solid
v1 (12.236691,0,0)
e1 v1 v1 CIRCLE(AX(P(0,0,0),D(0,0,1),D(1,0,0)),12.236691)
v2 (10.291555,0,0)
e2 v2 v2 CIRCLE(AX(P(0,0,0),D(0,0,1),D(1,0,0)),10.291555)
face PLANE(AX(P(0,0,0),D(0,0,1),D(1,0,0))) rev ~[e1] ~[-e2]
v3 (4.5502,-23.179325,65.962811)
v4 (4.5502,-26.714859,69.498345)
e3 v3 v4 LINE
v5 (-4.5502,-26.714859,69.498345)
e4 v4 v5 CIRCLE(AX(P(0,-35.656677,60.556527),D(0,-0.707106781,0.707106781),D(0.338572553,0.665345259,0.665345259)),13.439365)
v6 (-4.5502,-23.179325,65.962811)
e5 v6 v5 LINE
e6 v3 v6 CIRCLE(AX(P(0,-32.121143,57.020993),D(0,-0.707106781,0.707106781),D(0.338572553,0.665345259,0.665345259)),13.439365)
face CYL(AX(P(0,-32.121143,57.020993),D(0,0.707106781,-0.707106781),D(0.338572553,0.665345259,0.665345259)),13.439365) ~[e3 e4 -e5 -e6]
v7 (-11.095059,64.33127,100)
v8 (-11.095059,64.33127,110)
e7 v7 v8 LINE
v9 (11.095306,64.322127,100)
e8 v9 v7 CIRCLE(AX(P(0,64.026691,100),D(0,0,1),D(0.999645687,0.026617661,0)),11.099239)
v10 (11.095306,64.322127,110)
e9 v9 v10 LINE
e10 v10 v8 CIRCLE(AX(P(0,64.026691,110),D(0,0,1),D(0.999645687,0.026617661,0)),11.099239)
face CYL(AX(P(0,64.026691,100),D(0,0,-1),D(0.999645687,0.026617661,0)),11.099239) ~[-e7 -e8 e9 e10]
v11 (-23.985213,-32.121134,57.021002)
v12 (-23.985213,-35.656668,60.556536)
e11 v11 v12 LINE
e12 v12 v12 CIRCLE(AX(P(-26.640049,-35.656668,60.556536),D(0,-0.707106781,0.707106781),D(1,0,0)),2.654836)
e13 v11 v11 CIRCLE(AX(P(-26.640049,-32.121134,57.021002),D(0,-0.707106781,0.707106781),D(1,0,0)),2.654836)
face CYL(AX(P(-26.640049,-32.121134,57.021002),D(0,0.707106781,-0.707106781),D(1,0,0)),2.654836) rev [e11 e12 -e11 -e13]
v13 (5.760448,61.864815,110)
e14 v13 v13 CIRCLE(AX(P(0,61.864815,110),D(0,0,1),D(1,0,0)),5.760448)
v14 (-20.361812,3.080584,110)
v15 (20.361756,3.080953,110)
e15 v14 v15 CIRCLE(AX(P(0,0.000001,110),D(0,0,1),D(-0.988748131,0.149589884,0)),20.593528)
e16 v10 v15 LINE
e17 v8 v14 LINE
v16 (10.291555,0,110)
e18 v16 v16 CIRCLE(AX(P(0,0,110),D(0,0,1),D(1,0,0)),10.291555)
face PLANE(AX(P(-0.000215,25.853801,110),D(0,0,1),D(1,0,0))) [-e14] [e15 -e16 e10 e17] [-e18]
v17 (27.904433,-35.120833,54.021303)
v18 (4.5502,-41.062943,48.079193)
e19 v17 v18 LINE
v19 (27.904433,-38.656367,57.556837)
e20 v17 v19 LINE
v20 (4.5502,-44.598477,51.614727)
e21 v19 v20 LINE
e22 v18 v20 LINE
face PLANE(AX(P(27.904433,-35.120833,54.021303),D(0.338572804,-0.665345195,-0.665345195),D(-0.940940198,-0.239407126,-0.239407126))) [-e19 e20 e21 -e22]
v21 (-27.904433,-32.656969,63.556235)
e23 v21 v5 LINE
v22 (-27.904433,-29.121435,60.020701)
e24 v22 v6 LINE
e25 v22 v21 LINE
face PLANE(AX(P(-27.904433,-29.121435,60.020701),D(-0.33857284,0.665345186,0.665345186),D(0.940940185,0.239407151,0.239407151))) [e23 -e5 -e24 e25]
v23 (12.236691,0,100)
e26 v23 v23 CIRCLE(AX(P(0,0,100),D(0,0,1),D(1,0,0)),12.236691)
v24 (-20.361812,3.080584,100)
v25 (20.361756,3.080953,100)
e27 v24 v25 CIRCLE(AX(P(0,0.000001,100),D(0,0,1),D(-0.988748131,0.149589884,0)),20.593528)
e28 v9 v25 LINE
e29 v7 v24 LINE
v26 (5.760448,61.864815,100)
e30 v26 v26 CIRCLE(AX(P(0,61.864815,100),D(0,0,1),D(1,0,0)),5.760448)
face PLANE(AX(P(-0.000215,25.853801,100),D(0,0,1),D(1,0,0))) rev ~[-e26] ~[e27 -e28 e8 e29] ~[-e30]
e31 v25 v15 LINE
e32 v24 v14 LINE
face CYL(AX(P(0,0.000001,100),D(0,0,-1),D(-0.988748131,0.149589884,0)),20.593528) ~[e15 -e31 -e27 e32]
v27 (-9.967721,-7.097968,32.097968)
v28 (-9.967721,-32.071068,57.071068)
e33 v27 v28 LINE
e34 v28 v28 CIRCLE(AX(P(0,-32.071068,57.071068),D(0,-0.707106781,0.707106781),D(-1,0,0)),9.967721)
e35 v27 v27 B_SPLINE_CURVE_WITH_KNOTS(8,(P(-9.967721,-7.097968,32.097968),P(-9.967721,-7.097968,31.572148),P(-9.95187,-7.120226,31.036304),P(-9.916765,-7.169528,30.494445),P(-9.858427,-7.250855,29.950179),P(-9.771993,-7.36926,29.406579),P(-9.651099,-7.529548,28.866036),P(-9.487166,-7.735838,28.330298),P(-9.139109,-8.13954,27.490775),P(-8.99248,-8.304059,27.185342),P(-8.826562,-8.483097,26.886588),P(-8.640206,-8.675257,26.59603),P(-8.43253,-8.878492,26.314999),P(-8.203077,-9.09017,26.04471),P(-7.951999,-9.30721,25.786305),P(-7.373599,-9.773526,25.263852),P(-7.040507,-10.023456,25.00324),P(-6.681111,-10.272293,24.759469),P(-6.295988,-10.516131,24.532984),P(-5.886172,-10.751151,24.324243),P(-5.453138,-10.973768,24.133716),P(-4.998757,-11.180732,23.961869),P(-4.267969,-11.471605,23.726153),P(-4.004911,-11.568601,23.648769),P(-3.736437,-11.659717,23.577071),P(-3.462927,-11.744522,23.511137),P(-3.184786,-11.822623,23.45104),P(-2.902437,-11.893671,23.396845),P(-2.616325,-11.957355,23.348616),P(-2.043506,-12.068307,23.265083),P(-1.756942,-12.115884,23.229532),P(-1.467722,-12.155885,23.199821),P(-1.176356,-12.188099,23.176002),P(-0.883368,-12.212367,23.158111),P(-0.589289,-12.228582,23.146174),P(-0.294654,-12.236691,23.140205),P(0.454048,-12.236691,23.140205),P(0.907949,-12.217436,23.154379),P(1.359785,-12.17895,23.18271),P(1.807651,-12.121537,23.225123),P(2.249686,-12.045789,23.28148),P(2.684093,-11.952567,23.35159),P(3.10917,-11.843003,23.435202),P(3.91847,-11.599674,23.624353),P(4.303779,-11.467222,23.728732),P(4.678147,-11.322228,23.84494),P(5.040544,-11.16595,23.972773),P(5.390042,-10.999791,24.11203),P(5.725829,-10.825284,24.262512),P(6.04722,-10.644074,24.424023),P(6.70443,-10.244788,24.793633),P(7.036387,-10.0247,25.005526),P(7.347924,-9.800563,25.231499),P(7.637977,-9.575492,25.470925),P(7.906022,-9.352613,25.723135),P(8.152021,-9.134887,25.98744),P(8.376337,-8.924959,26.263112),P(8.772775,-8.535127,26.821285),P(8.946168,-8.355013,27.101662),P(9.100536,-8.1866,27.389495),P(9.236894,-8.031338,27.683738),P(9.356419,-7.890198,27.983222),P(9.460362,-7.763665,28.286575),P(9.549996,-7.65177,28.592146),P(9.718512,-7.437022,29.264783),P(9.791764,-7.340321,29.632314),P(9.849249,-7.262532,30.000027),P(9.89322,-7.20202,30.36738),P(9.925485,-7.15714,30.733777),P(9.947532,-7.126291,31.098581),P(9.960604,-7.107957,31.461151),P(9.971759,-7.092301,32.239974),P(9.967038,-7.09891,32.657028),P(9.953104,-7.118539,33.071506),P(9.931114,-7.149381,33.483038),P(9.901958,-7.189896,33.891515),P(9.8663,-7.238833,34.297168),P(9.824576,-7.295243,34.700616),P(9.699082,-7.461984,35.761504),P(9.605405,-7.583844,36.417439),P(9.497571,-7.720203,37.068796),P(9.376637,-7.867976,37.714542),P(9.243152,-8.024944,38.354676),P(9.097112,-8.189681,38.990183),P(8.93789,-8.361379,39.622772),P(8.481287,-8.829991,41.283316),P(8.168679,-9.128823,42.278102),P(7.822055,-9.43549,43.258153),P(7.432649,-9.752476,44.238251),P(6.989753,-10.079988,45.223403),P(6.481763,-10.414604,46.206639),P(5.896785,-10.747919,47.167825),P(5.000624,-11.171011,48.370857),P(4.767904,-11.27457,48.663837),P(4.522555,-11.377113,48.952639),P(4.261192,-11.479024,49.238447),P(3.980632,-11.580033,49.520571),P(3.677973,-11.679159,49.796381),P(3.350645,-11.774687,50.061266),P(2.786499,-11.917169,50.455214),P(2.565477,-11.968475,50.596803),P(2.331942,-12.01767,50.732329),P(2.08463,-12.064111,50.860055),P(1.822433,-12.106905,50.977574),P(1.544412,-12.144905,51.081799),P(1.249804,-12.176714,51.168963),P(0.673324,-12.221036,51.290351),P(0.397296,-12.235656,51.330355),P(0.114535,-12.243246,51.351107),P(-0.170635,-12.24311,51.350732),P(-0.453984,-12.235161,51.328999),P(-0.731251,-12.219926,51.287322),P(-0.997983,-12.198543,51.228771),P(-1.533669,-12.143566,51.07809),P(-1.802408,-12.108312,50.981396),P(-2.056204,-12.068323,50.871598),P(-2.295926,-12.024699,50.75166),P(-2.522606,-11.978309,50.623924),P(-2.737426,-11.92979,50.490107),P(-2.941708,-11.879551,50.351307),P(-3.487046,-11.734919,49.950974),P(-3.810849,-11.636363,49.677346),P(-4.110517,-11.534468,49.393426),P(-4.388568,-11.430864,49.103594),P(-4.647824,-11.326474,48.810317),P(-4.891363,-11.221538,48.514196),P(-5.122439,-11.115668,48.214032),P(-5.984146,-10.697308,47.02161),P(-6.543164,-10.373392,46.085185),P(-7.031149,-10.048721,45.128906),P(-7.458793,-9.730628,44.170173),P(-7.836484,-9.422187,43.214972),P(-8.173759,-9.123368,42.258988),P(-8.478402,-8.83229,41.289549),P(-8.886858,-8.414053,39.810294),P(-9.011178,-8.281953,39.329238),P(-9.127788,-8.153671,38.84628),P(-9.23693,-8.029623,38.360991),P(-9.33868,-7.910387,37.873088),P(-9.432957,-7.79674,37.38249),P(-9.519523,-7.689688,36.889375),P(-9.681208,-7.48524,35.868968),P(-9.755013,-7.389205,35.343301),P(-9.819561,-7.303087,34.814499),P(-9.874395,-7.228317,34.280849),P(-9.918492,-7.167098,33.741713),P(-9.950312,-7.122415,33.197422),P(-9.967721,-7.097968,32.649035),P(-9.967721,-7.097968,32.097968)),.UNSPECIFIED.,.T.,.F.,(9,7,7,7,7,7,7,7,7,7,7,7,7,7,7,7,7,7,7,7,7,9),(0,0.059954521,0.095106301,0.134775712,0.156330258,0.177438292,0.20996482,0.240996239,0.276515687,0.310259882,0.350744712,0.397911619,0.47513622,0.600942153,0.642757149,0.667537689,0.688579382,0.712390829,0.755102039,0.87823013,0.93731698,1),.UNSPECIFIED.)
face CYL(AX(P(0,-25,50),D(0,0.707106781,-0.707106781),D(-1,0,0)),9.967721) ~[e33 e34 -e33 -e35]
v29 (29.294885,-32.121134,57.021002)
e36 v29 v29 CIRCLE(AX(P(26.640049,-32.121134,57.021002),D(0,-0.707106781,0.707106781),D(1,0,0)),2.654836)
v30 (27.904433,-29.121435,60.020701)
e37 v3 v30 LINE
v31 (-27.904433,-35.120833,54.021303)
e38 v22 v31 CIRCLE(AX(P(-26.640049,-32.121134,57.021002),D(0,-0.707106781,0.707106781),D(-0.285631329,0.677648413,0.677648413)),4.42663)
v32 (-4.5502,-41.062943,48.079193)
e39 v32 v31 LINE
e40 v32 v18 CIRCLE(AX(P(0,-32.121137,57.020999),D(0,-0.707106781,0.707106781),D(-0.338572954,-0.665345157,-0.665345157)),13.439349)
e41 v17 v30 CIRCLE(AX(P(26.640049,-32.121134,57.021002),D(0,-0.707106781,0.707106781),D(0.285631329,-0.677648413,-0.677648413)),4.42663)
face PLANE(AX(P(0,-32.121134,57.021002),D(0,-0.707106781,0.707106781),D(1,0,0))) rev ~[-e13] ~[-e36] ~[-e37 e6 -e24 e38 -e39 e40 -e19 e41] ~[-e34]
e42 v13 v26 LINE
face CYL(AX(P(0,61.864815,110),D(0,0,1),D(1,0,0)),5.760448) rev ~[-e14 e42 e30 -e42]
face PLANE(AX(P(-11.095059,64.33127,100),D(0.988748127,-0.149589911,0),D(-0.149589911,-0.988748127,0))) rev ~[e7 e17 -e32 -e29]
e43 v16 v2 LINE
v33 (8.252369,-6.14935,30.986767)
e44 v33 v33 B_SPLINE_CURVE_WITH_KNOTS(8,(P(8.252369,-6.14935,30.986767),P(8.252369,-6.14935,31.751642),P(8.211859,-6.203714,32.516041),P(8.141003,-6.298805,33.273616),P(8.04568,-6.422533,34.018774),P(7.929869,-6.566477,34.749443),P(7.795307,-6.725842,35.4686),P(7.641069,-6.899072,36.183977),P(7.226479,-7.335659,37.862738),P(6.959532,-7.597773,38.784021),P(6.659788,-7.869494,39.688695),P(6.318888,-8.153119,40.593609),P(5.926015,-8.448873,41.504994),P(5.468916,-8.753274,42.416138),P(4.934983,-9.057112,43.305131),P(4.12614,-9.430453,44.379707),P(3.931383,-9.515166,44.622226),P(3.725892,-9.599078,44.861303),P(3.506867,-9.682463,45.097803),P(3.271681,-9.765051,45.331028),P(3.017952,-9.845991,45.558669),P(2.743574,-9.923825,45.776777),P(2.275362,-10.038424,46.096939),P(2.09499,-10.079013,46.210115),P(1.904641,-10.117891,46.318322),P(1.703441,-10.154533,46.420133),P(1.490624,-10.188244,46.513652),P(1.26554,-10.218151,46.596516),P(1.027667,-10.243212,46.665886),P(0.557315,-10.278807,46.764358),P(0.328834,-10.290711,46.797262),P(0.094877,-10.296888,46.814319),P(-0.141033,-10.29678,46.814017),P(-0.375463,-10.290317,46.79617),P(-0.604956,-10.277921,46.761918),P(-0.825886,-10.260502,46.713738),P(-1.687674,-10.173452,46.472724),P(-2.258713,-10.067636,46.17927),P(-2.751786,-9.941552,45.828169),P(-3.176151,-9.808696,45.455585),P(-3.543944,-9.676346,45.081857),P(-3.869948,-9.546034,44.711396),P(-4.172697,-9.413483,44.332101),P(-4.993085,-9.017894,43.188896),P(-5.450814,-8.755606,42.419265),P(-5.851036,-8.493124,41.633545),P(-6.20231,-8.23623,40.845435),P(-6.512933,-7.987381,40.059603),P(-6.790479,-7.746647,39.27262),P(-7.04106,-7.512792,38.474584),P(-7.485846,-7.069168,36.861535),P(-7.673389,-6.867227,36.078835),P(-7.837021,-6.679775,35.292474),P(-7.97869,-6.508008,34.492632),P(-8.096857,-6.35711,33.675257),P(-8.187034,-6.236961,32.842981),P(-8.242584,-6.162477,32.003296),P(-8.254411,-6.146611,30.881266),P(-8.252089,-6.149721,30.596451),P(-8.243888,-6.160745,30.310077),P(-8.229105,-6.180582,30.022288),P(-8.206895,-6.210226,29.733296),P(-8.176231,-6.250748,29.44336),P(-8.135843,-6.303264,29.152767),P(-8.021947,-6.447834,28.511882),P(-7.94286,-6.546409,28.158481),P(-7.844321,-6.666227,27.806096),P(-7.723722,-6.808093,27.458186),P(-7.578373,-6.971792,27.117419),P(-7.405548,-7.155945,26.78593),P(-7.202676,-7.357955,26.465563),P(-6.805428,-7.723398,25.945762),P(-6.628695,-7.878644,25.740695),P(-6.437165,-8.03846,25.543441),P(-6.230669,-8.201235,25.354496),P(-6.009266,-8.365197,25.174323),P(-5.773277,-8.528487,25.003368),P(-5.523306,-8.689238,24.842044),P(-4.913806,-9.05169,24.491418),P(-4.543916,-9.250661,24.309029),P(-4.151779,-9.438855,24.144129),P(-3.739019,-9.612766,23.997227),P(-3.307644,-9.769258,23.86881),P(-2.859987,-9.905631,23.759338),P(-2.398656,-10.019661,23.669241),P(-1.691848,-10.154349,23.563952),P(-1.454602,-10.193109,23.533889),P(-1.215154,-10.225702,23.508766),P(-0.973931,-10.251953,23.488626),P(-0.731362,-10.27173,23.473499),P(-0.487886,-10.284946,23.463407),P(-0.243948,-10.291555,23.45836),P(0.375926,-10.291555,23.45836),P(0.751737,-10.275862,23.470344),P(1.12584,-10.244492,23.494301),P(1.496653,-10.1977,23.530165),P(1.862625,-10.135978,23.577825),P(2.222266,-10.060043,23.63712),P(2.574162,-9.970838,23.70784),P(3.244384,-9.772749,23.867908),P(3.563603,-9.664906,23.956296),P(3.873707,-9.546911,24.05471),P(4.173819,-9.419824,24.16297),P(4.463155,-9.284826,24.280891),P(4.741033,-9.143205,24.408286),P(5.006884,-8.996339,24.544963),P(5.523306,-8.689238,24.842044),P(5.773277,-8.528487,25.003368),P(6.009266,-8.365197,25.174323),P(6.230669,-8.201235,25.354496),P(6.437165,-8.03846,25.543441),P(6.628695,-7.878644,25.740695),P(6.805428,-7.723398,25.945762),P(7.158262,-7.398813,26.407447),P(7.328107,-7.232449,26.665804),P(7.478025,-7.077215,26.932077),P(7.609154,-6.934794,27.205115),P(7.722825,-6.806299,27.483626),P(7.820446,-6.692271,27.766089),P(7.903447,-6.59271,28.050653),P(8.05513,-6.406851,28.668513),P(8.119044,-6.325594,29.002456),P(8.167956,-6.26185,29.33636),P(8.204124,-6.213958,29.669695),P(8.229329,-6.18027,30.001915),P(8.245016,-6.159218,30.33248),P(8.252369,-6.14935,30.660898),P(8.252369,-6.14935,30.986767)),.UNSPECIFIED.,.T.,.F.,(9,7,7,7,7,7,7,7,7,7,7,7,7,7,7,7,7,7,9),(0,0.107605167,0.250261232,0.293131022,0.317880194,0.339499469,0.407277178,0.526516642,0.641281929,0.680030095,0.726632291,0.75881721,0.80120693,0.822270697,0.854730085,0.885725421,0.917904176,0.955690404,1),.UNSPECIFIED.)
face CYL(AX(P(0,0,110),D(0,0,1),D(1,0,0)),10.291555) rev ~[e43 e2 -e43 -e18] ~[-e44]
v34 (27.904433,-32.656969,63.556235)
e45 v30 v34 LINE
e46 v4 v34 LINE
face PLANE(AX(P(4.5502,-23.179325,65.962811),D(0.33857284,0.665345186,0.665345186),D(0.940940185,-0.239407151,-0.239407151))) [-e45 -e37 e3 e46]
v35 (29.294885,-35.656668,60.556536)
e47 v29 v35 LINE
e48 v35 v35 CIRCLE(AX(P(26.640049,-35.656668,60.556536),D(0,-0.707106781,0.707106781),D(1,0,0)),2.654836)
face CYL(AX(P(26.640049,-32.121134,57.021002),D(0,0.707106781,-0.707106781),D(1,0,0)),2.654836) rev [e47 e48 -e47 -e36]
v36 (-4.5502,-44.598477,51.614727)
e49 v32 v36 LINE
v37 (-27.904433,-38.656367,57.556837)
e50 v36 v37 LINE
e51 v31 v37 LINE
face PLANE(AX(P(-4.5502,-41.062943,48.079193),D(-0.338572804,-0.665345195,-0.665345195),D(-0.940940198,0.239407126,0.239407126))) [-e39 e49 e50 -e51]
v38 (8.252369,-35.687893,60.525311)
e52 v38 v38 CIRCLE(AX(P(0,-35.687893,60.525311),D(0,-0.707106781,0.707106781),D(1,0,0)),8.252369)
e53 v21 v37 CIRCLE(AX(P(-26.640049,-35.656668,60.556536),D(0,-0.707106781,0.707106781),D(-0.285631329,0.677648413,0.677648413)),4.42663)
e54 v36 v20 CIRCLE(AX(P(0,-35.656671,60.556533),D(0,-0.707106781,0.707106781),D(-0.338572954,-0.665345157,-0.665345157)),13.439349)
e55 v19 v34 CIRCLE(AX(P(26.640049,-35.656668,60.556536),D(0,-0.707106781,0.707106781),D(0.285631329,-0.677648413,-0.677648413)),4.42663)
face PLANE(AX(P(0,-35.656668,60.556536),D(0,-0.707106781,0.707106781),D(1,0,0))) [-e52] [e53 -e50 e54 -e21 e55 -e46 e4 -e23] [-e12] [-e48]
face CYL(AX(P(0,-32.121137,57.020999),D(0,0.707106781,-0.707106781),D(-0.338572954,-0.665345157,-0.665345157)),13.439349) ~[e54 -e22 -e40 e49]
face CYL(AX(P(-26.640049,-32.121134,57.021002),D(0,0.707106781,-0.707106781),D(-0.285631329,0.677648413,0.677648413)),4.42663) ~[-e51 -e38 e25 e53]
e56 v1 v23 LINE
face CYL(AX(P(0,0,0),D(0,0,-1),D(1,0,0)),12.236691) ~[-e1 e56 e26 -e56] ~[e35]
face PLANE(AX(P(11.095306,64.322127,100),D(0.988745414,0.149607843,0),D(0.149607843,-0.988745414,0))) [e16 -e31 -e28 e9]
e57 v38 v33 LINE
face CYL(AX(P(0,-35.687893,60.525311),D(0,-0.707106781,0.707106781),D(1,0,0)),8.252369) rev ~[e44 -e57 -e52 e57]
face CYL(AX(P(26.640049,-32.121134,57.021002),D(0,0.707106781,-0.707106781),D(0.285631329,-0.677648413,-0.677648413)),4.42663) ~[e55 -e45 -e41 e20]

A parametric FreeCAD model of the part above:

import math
import FreeCAD as App
import Part
import Sketcher
from FreeCAD import Vector
Q = App.Units.Quantity

doc = App.newDocument("Part")
params = doc.addObject("Spreadsheet::Sheet", "Params")
for row, (alias, value) in enumerate([
    ("pad1_length", "100 mm"),
    ("pad2_length", "10 mm"),
    ("pad3_length", "31 mm"),
    ("pad3_length2", "10 mm"),
    ("pad4_length", "5 mm"),
    ("pocket2_length", "56 mm"),
], start=1):
    params.set(f"A{row}", alias)
    params.set(f"B{row}", "=" + value)
    params.setAlias(f"B{row}", alias)

body = doc.addObject("PartDesign::Body", "Body")

sketch1 = body.newObject("Sketcher::SketchObject", "Sketch")
sketch1.AttachmentSupport = (doc.getObject("XY_Plane"), [""])
sketch1.MapMode = "FlatFace"
sketch1.addGeometry(Part.Circle(Vector(0, 0, 0), Vector(0, 0, 1), 12.236691), False)
sketch1.addConstraint([
    Sketcher.Constraint("Coincident", 0, 3, -1, 1),
    Sketcher.Constraint("Diameter", 0, Q("24.473382 mm")),
])
pad1 = body.newObject("PartDesign::Pad", "Pad")
pad1.Profile = sketch1
pad1.setExpression("Length", "Params.pad1_length")

sketch2 = body.newObject("Sketcher::SketchObject", "Sketch001")
sketch2.AttachmentSupport = (doc.getObject("XY_Plane"), [""])
sketch2.MapMode = "FlatFace"
sketch2.AttachmentOffset = App.Placement(Vector(0, 0, 100), App.Rotation())
sketch2.addGeometry([
    Part.ArcOfCircle(Part.Circle(Vector(0, 0.000001, 0), Vector(0, 0, 1), 20.593528), math.radians(171.396839), math.radians(368.604199)),
    Part.LineSegment(Vector(20.361756, 3.080953, 0), Vector(11.095306, 64.322127, 0)),
    Part.ArcOfCircle(Part.Circle(Vector(0, 64.026691, 0), Vector(0, 0, 1), 11.099239), math.radians(1.52526), math.radians(178.427526)),
    Part.LineSegment(Vector(-11.095059, 64.33127, 0), Vector(-20.361812, 3.080584, 0)),
], False)
sketch2.addConstraint([
    Sketcher.Constraint("Tangent", 0, 2, 1, 1),
    Sketcher.Constraint("Coincident", 1, 2, 2, 1),
    Sketcher.Constraint("Coincident", 2, 2, 3, 1),
    Sketcher.Constraint("Tangent", 3, 2, 0, 1),
    Sketcher.Constraint("Coincident", 0, 3, -1, 1),
    Sketcher.Constraint("PointOnObject", 2, 3, -2),
    Sketcher.Constraint("Radius", 2, Q("11.099239 mm")),
    Sketcher.Constraint("Radius", 0, Q("20.593528 mm")),
    Sketcher.Constraint("DistanceY", -1, 1, 2, 3, Q("64.026691 mm")),
    Sketcher.Constraint("DistanceX", 2, 2, -1, 1, Q("11.095059 mm")),
    Sketcher.Constraint("DistanceX", 1, 2, 0, 2, Q("9.26645 mm")),
])
pad2 = body.newObject("PartDesign::Pad", "Pad001")
pad2.Profile = sketch2
pad2.setExpression("Length", "Params.pad2_length")

sketch3 = body.newObject("Sketcher::SketchObject", "Sketch002")
sketch3.Placement = App.Placement(Vector(0, -25, 50), App.Rotation(Vector(-1, 0, 0), Vector(0, -0.707106781, -0.707106781), Vector(0, -0.707106781, 0.707106781), "ZXY"))
sketch3.addGeometry(Part.Circle(Vector(0, 0, 0), Vector(0, 0, 1), 9.967721), False)
sketch3.addConstraint([
    Sketcher.Constraint("Coincident", 0, 3, -1, 1),
    Sketcher.Constraint("Diameter", 0, Q("19.935442 mm")),
])
pad3 = body.newObject("PartDesign::Pad", "Pad002")
pad3.Profile = sketch3
pad3.Type = "TwoLengths"
pad3.setExpression("Length", "Params.pad3_length")
pad3.setExpression("Length2", "Params.pad3_length2")
pad3.Reversed = True

sketch4 = body.newObject("Sketcher::SketchObject", "Sketch003")
sketch4.Placement = App.Placement(Vector(0, -44.571068, 44.571068), App.Rotation(Vector(1, 0, 0), Vector(0, 0.707106781, 0.707106781), Vector(0, -0.707106781, 0.707106781), "ZXY"))
sketch4.addGeometry([
    Part.ArcOfCircle(Part.Circle(Vector(0, 17.606853, 0), Vector(0, 0, 1), 13.439365), math.radians(70.21007), math.radians(109.78993)),
    Part.LineSegment(Vector(-4.5502, 30.252493, 0), Vector(-27.904433, 21.84908, 0)),
    Part.ArcOfCircle(Part.Circle(Vector(-26.640049, 17.606865, 0), Vector(0, 0, 1), 4.42663), math.radians(106.59659), math.radians(253.40341)),
    Part.LineSegment(Vector(-27.904433, 13.36465, 0), Vector(-4.5502, 4.961238, 0)),
    Part.ArcOfCircle(Part.Circle(Vector(0, 17.606861, 0), Vector(0, 0, 1), 13.439349), math.radians(-109.789955), math.radians(-70.210045)),
    Part.LineSegment(Vector(4.5502, 4.961238, 0), Vector(27.904433, 13.36465, 0)),
    Part.ArcOfCircle(Part.Circle(Vector(26.640049, 17.606865, 0), Vector(0, 0, 1), 4.42663), math.radians(-73.40341), math.radians(73.40341)),
    Part.LineSegment(Vector(27.904433, 21.84908, 0), Vector(4.5502, 30.252493, 0)),
    Part.Circle(Vector(-26.640049, 17.606865, 0), Vector(0, 0, 1), 2.654836),
    Part.Circle(Vector(26.640049, 17.606865, 0), Vector(0, 0, 1), 2.654836),
], False)
sketch4.addConstraint([
    Sketcher.Constraint("Coincident", 0, 2, 1, 1),
    Sketcher.Constraint("Coincident", 1, 2, 2, 1),
    Sketcher.Constraint("Coincident", 2, 2, 3, 1),
    Sketcher.Constraint("Coincident", 3, 2, 4, 1),
    Sketcher.Constraint("Coincident", 4, 2, 5, 1),
    Sketcher.Constraint("Coincident", 5, 2, 6, 1),
    Sketcher.Constraint("Coincident", 6, 2, 7, 1),
    Sketcher.Constraint("Coincident", 7, 2, 0, 1),
    Sketcher.Constraint("Coincident", 4, 3, 0, 3),
    Sketcher.Constraint("Coincident", 8, 3, 2, 3),
    Sketcher.Constraint("Coincident", 9, 3, 6, 3),
    Sketcher.Constraint("PointOnObject", 0, 3, -2),
    Sketcher.Constraint("Radius", 2, Q("4.42663 mm")),
    Sketcher.Constraint("Radius", 4, Q("13.439349 mm")),
    Sketcher.Constraint("Radius", 6, Q("4.42663 mm")),
    Sketcher.Constraint("Diameter", 8, Q("5.309672 mm")),
    Sketcher.Constraint("Diameter", 9, Q("5.309672 mm")),
    Sketcher.Constraint("Radius", 0, Q("13.439365 mm")),
    Sketcher.Constraint("DistanceX", 0, 2, -1, 1, Q("4.5502 mm")),
    Sketcher.Constraint("DistanceX", 3, 2, -1, 1, Q("4.5502 mm")),
    Sketcher.Constraint("DistanceX", -1, 1, 4, 2, Q("4.5502 mm")),
    Sketcher.Constraint("DistanceX", -1, 1, 7, 2, Q("4.5502 mm")),
    Sketcher.Constraint("DistanceX", 8, 3, 9, 3, Q("53.280098 mm")),
    Sketcher.Constraint("DistanceX", 2, 3, -1, 1, Q("26.640049 mm")),
    Sketcher.Constraint("DistanceY", -1, 1, 4, 3, Q("17.606861 mm")),
    Sketcher.Constraint("DistanceY", -1, 1, 1, 2, Q("21.84908 mm")),
    Sketcher.Constraint("DistanceY", -1, 1, 2, 2, Q("13.36465 mm")),
    Sketcher.Constraint("DistanceY", -1, 1, 5, 2, Q("13.36465 mm")),
    Sketcher.Constraint("DistanceY", -1, 1, 6, 2, Q("21.84908 mm")),
    Sketcher.Constraint("Distance", 1, Q("24.820104 mm")),
    Sketcher.Constraint("Distance", 5, Q("24.820103 mm")),
])
pad4 = body.newObject("PartDesign::Pad", "Pad003")
pad4.Profile = sketch4
pad4.setExpression("Length", "Params.pad4_length")

sketch5 = body.newObject("Sketcher::SketchObject", "Sketch004")
sketch5.AttachmentSupport = (doc.getObject("XY_Plane"), [""])
sketch5.MapMode = "FlatFace"
sketch5.AttachmentOffset = App.Placement(Vector(0, 0, 110), App.Rotation())
sketch5.addGeometry([
    Part.Circle(Vector(0, 0, 0), Vector(0, 0, 1), 10.291555),
    Part.Circle(Vector(0, 61.864815, 0), Vector(0, 0, 1), 5.760448),
], False)
sketch5.addConstraint([
    Sketcher.Constraint("Coincident", 0, 3, -1, 1),
    Sketcher.Constraint("PointOnObject", 1, 3, -2),
    Sketcher.Constraint("Diameter", 0, Q("20.58311 mm")),
    Sketcher.Constraint("Diameter", 1, Q("11.520896 mm")),
    Sketcher.Constraint("DistanceY", -1, 1, 1, 3, Q("61.864815 mm")),
])
pocket1 = body.newObject("PartDesign::Pocket", "Pocket")
pocket1.Profile = sketch5
pocket1.Type = "ThroughAll"

sketch6 = body.newObject("Sketcher::SketchObject", "Sketch005")
sketch6.Placement = App.Placement(Vector(0, -48.106602, 48.106602), App.Rotation(Vector(1, 0, 0), Vector(0, 0.707106781, 0.707106781), Vector(0, -0.707106781, 0.707106781), "ZXY"))
sketch6.addGeometry(Part.Circle(Vector(0, 17.562706, 0), Vector(0, 0, 1), 8.252369), False)
sketch6.addConstraint([
    Sketcher.Constraint("PointOnObject", 0, 3, -2),
    Sketcher.Constraint("Diameter", 0, Q("16.504738 mm")),
    Sketcher.Constraint("DistanceY", -1, 1, 0, 3, Q("17.562706 mm")),
])
pocket2 = body.newObject("PartDesign::Pocket", "Pocket001")
pocket2.Profile = sketch6
pocket2.setExpression("Length", "Params.pocket2_length")

doc.recompute()
